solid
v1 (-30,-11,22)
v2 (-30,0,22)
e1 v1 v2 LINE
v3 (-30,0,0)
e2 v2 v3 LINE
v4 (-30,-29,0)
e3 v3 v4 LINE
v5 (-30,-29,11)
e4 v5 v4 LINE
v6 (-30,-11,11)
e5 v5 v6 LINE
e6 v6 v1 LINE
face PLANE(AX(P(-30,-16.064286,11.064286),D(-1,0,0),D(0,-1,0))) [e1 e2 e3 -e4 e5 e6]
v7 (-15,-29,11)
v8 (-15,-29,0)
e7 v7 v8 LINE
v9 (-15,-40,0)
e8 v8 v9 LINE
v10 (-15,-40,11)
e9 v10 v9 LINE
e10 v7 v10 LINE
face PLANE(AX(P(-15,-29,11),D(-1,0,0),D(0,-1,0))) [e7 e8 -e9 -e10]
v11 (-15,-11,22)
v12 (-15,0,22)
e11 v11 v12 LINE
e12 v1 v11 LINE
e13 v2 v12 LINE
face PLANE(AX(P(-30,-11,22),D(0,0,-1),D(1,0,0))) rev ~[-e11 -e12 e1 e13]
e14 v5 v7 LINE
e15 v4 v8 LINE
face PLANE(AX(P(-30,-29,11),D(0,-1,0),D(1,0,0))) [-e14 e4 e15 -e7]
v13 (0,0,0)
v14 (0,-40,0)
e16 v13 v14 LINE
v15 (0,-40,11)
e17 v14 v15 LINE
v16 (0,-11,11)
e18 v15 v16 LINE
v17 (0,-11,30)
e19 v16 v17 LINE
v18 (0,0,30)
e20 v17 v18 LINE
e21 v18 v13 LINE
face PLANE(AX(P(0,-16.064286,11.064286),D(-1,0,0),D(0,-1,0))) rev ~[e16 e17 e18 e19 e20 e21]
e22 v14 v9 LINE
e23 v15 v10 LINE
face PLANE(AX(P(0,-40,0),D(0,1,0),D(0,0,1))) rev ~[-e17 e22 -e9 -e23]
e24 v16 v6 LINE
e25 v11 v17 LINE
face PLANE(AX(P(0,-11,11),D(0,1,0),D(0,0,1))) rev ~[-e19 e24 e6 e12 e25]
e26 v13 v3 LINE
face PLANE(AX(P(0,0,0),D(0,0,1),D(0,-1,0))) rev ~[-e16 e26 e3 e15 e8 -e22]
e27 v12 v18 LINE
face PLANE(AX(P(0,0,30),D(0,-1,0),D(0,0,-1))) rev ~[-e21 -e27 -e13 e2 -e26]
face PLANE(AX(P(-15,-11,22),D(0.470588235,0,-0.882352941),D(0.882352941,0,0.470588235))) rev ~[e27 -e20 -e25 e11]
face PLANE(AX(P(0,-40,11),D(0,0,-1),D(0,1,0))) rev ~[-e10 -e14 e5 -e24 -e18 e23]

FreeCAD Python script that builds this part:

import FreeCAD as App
import Part
import Sketcher
from FreeCAD import Vector
Q = App.Units.Quantity

doc = App.newDocument("Part")
body = doc.addObject("PartDesign::Body", "Body")

sketch1 = body.newObject("Sketcher::SketchObject", "Sketch")
sketch1.AttachmentSupport = (doc.getObject("XZ_Plane"), [""])
sketch1.MapMode = "FlatFace"
sketch1.addGeometry([
    Part.LineSegment(Vector(0, 30, 0), Vector(0, 0, 0)),
    Part.LineSegment(Vector(0, 0, 0), Vector(40, 0, 0)),
    Part.LineSegment(Vector(40, 0, 0), Vector(40, 11, 0)),
    Part.LineSegment(Vector(40, 11, 0), Vector(11, 11, 0)),
    Part.LineSegment(Vector(11, 11, 0), Vector(11, 30, 0)),
    Part.LineSegment(Vector(11, 30, 0), Vector(0, 30, 0)),
], False)
sketch1.addConstraint([
    Sketcher.Constraint("Coincident", 0, 2, 1, 1),
    Sketcher.Constraint("Coincident", 1, 2, 2, 1),
    Sketcher.Constraint("Coincident", 2, 2, 3, 1),
    Sketcher.Constraint("Coincident", 3, 2, 4, 1),
    Sketcher.Constraint("Coincident", 4, 2, 5, 1),
    Sketcher.Constraint("Coincident", 5, 2, 0, 1),
    Sketcher.Constraint("Vertical", 0),
    Sketcher.Constraint("Horizontal", 1),
    Sketcher.Constraint("Vertical", 2),
    Sketcher.Constraint("Horizontal", 3),
    Sketcher.Constraint("Vertical", 4),
    Sketcher.Constraint("Horizontal", 5),
    Sketcher.Constraint("Coincident", 0, 2, -1, 1),
    Sketcher.Constraint("Equal", 5, 2),
    Sketcher.Constraint("DistanceX", 1, 1, 1, 2, Q("40 mm")),
    Sketcher.Constraint("DistanceX", 3, 2, 3, 1, Q("29 mm")),
    Sketcher.Constraint("DistanceY", 0, 2, 0, 1, Q("30 mm")),
])
pad1 = body.newObject("PartDesign::Pad", "Pad")
pad1.Profile = sketch1
pad1.Length = 30

sketch2 = body.newObject("Sketcher::SketchObject", "Sketch001")
sketch2.AttachmentSupport = (doc.getObject("XY_Plane"), [""])
sketch2.MapMode = "FlatFace"
sketch2.AttachmentOffset = App.Placement(Vector(0, 0, 11), App.Rotation())
sketch2.addGeometry([
    Part.LineSegment(Vector(29, -15, 0), Vector(29, -30, 0)),
    Part.LineSegment(Vector(29, -30, 0), Vector(40, -30, 0)),
    Part.LineSegment(Vector(40, -30, 0), Vector(40, -15, 0)),
    Part.LineSegment(Vector(40, -15, 0), Vector(29, -15, 0)),
], False)
sketch2.addConstraint([
    Sketcher.Constraint("Coincident", 0, 2, 1, 1),
    Sketcher.Constraint("Coincident", 1, 2, 2, 1),
    Sketcher.Constraint("Coincident", 2, 2, 3, 1),
    Sketcher.Constraint("Coincident", 3, 2, 0, 1),
    Sketcher.Constraint("Vertical", 0),
    Sketcher.Constraint("Horizontal", 1),
    Sketcher.Constraint("Vertical", 2),
    Sketcher.Constraint("Horizontal", 3),
    Sketcher.Constraint("DistanceX", 1, 1, 1, 2, Q("11 mm")),
    Sketcher.Constraint("DistanceY", 0, 2, 0, 1, Q("15 mm")),
    Sketcher.Constraint("DistanceX", -1, 1, 0, 2, Q("29 mm")),
    Sketcher.Constraint("DistanceY", 0, 2, -1, 1, Q("30 mm")),
])
pocket1 = body.newObject("PartDesign::Pocket", "Pocket")
pocket1.Profile = sketch2
pocket1.Type = "ThroughAll"

sketch3 = body.newObject("Sketcher::SketchObject", "Sketch002")
sketch3.AttachmentSupport = (doc.getObject("YZ_Plane"), [""])
sketch3.MapMode = "FlatFace"
sketch3.AttachmentOffset = App.Placement(Vector(0, 0, 11), App.Rotation())
sketch3.addGeometry([
    Part.LineSegment(Vector(-30, 30, 0), Vector(-30, 22, 0)),
    Part.LineSegment(Vector(-30, 22, 0), Vector(-15, 22, 0)),
    Part.LineSegment(Vector(-15, 22, 0), Vector(-15, 30, 0)),
    Part.LineSegment(Vector(-15, 30, 0), Vector(-30, 30, 0)),
], False)
sketch3.addConstraint([
    Sketcher.Constraint("Coincident", 0, 2, 1, 1),
    Sketcher.Constraint("Coincident", 1, 2, 2, 1),
    Sketcher.Constraint("Coincident", 2, 2, 3, 1),
    Sketcher.Constraint("Coincident", 3, 2, 0, 1),
    Sketcher.Constraint("Vertical", 0),
    Sketcher.Constraint("Horizontal", 1),
    Sketcher.Constraint("Vertical", 2),
    Sketcher.Constraint("Horizontal", 3),
    Sketcher.Constraint("DistanceX", 1, 1, 1, 2, Q("15 mm")),
    Sketcher.Constraint("DistanceY", 0, 2, 0, 1, Q("8 mm")),
    Sketcher.Constraint("DistanceX", 0, 2, -1, 1, Q("30 mm")),
    Sketcher.Constraint("DistanceY", -1, 1, 0, 2, Q("22 mm")),
])
pocket2 = body.newObject("PartDesign::Pocket", "Pocket001")
pocket2.Profile = sketch3
pocket2.Type = "ThroughAll"
body2 = doc.addObject("PartDesign::Body", "Body001")
doc.recompute()

body.Placement = App.Placement(Vector(0, 0, 0), App.Rotation(Vector(0, 0, 1), 270))
boolean = body2.newObject("PartDesign::Boolean", "Boolean")
boolean.Type = "Fuse"
boolean.addObjects([body])

sketch4 = body2.newObject("Sketcher::SketchObject", "Sketch003")
sketch4.AttachmentSupport = (doc.getObject("XZ_Plane001"), [""])
sketch4.MapMode = "FlatFace"
sketch4.AttachmentOffset = App.Placement(Vector(0, 0, 11), App.Rotation())
sketch4.addGeometry([
    Part.LineSegment(Vector(-15, 30, 0), Vector(-15, 22, 0)),
    Part.LineSegment(Vector(-15, 22, 0), Vector(0, 30, 0)),
    Part.LineSegment(Vector(0, 30, 0), Vector(-15, 30, 0)),
], False)
sketch4.addConstraint([
    Sketcher.Constraint("Coincident", 0, 2, 1, 1),
    Sketcher.Constraint("Coincident", 1, 2, 2, 1),
    Sketcher.Constraint("Coincident", 2, 2, 0, 1),
    Sketcher.Constraint("Vertical", 0),
    Sketcher.Constraint("Horizontal", 2),
    Sketcher.Constraint("PointOnObject", 1, 2, -2),
    Sketcher.Constraint("DistanceX", 2, 2, 2, 1, Q("15 mm")),
    Sketcher.Constraint("DistanceY", 0, 2, 0, 1, Q("8 mm")),
    Sketcher.Constraint("DistanceY", -1, 1, 0, 2, Q("22 mm")),
])
pocket3 = body2.newObject("PartDesign::Pocket", "Pocket002")
pocket3.Profile = sketch4
pocket3.Type = "ThroughAll"

doc.recompute()
